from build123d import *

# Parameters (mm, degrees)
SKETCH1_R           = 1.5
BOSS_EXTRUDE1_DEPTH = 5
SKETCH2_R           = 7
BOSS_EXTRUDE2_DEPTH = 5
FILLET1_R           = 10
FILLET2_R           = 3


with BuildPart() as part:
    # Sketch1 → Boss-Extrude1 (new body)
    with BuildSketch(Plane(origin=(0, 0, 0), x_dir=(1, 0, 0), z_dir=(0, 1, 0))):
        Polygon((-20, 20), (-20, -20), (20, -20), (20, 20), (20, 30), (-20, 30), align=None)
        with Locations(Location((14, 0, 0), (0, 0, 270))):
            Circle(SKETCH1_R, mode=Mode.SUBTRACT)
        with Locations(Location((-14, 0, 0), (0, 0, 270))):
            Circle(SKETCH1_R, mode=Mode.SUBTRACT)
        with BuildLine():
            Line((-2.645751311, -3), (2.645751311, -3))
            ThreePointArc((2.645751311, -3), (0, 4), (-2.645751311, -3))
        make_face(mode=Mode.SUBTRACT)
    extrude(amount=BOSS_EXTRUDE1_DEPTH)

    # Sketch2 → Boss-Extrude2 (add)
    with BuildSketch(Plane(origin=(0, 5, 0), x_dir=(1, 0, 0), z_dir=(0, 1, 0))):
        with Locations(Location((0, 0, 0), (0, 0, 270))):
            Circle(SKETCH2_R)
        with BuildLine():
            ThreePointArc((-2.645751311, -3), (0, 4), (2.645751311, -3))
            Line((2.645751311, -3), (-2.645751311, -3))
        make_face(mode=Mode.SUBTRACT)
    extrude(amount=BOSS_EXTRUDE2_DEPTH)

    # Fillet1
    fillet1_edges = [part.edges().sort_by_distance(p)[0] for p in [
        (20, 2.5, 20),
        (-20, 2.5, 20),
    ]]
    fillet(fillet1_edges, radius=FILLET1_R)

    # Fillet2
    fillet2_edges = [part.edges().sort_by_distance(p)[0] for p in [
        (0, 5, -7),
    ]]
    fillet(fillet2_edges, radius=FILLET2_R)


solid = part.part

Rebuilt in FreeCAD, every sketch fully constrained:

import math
import FreeCAD as App
import Part
import Sketcher


def edges_at(feature, points):
    """Names of the edges that pass closest to the given points."""
    edges = feature.Shape.Edges
    near = lambda p: min(range(len(edges)), key=lambda i: edges[i].distToShape(Part.Vertex(*p))[0])
    return sorted({f"Edge{near(p) + 1}" for p in points})


def add_polygon(sketch, points):
    """Adds a closed chain of lines whose ends are joined by coincident constraints."""
    first, n = sketch.GeometryCount, len(points)
    for a, b in zip(points, points[1:] + points[:1]):
        sketch.addGeometry(Part.LineSegment(App.Vector(*a, 0), App.Vector(*b, 0)), False)
    for i in range(n):
        sketch.addConstraint(Sketcher.Constraint("Coincident", first + i, 2, first + (i + 1) % n, 1))

doc = App.newDocument("Part")
body = doc.addObject("PartDesign::Body", "Body")

sketch1 = body.newObject("Sketcher::SketchObject", "Sketch")
sketch1.AttachmentSupport = (doc.getObject("XZ_Plane"), [""])
sketch1.MapMode = "FlatFace"
add_polygon(sketch1, [(-20, 20), (20, 20), (20, -30), (-20, -30)])
sketch1.addGeometry(Part.Circle(App.Vector(-14, 0, 0), App.Vector(0, 0, 1), 1.5), False)
sketch1.addGeometry(Part.Circle(App.Vector(14, 0, 0), App.Vector(0, 0, 1), 1.5), False)
sketch1.addGeometry(Part.LineSegment(App.Vector(2.645751, 3, 0), App.Vector(-2.645751, 3, 0)), False)
sketch1.addGeometry(Part.ArcOfCircle(Part.Circle(App.Vector(0, 0, 0), App.Vector(0, 0, 1), 4), math.radians(131.409622), math.radians(408.590378)), False)
sketch1.addConstraint(Sketcher.Constraint("Coincident", 6, 1, 7, 2))
sketch1.addConstraint(Sketcher.Constraint("Coincident", 7, 1, 6, 2))
sketch1.addConstraint(Sketcher.Constraint("Horizontal", 0))
sketch1.addConstraint(Sketcher.Constraint("Vertical", 1))
sketch1.addConstraint(Sketcher.Constraint("Horizontal", 2))
sketch1.addConstraint(Sketcher.Constraint("Vertical", 3))
sketch1.addConstraint(Sketcher.Constraint("Horizontal", 6))
sketch1.addConstraint(Sketcher.Constraint("Coincident", 7, 3, -1, 1))
sketch1.addConstraint(Sketcher.Constraint("Equal", 4, 5))
sketch1.addConstraint(Sketcher.Constraint("Symmetric", 4, 3, 5, 3, -1, 1))
sketch1.addConstraint(Sketcher.Constraint("PointOnObject", 4, 3, -1))
sketch1.addConstraint(Sketcher.Constraint("Diameter", 4, 3.0))
sketch1.addConstraint(Sketcher.Constraint("Radius", 7, 4.0))
sketch1.addConstraint(Sketcher.Constraint("DistanceX", 0, 1, 0, 2, 40.0))
sketch1.addConstraint(Sketcher.Constraint("DistanceY", 1, 2, 1, 1, 50.0))
sketch1.addConstraint(Sketcher.Constraint("DistanceX", 4, 3, -1, 1, 14.0))
sketch1.addConstraint(Sketcher.Constraint("DistanceX", -1, 1, 0, 2, 20.0))
sketch1.addConstraint(Sketcher.Constraint("DistanceY", -1, 1, 0, 2, 20.0))
sketch1.addConstraint(Sketcher.Constraint("DistanceY", -1, 1, 6, 1, 3.0))
pad1 = body.newObject("PartDesign::Pad", "Pad")
pad1.Profile = sketch1
pad1.Length = 5
pad1.Reversed = True

sketch2 = body.newObject("Sketcher::SketchObject", "Sketch001")
sketch2.AttachmentSupport = (doc.getObject("XZ_Plane"), [""])
sketch2.MapMode = "FlatFace"
sketch2.AttachmentOffset = App.Placement(App.Vector(0, 0, -5), App.Rotation())
sketch2.addGeometry(Part.Circle(App.Vector(0, 0, 0), App.Vector(0, 0, 1), 7), False)
sketch2.addGeometry(Part.LineSegment(App.Vector(2.645751, 3, 0), App.Vector(-2.645751, 3, 0)), False)
sketch2.addGeometry(Part.ArcOfCircle(Part.Circle(App.Vector(0, 0, 0), App.Vector(0, 0, 1), 4), math.radians(131.409622), math.radians(408.590378)), False)
sketch2.addConstraint(Sketcher.Constraint("Coincident", 1, 1, 2, 2))
sketch2.addConstraint(Sketcher.Constraint("Coincident", 2, 1, 1, 2))
sketch2.addConstraint(Sketcher.Constraint("Horizontal", 1))
sketch2.addConstraint(Sketcher.Constraint("Coincident", 0, 3, -1, 1))
sketch2.addConstraint(Sketcher.Constraint("Coincident", 2, 3, -1, 1))
sketch2.addConstraint(Sketcher.Constraint("Diameter", 0, 14.0))
sketch2.addConstraint(Sketcher.Constraint("Radius", 2, 4.0))
sketch2.addConstraint(Sketcher.Constraint("DistanceY", -1, 1, 1, 1, 3.0))
pad2 = body.newObject("PartDesign::Pad", "Pad001")
pad2.Profile = sketch2
pad2.Length = 5
pad2.Reversed = True
doc.recompute()

fillet = body.newObject("PartDesign::Fillet", "Fillet")
fillet.Base = (pad2, edges_at(pad2, [(20, 2.5, 20), (-20, 2.5, 20)]))
fillet.Radius = 10
doc.recompute()

fillet2 = body.newObject("PartDesign::Fillet", "Fillet001")
fillet2.Base = (fillet, edges_at(fillet, [(0, 5, -7)]))
fillet2.Radius = 3

doc.recompute()
